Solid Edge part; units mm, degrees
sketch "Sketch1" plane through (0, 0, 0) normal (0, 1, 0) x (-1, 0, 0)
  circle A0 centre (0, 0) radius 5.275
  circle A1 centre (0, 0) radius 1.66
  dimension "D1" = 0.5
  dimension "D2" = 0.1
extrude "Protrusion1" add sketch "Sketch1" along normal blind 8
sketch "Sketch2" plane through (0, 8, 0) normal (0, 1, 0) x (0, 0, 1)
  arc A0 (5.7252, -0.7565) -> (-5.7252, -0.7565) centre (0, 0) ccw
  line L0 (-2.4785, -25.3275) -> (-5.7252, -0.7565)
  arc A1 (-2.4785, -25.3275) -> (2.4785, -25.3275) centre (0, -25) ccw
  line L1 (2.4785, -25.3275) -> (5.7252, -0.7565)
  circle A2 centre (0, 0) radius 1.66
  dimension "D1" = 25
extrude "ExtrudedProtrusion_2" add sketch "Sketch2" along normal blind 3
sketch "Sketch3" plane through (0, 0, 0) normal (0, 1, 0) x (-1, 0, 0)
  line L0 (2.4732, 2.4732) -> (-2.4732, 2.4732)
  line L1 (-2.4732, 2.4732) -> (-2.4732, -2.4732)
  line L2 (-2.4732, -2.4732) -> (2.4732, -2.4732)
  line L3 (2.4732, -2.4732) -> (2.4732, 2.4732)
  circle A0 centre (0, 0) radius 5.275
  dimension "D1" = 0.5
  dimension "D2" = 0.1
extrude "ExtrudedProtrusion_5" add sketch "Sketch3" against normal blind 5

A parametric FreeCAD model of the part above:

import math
import FreeCAD as App
import Part
import Sketcher
Q = App.Units.Quantity


def add_polygon(sketch, points):
    """Adds a closed chain of lines whose ends are joined by coincident constraints."""
    first, n = sketch.GeometryCount, len(points)
    for a, b in zip(points, points[1:] + points[:1]):
        sketch.addGeometry(Part.LineSegment(App.Vector(*a, 0), App.Vector(*b, 0)), False)
    for i in range(n):
        sketch.addConstraint(Sketcher.Constraint("Coincident", first + i, 2, first + (i + 1) % n, 1))

doc = App.newDocument("Part")
body = doc.addObject("PartDesign::Body", "Body")

# Sketch on XZ plane
sketch1 = doc.addObject("Sketcher::SketchObject", "Sketch")
body.addObject(sketch1)
sketch1.AttachmentSupport = (doc.XZ_Plane, [""])
sketch1.MapMode = "FlatFace"
sketch1.addGeometry([
    Part.Circle(App.Vector(0, 0, 0), App.Vector(0, 0, 1), 5.3),
    Part.Circle(App.Vector(0, 0, 0), App.Vector(0, 0, 1), 1.7),
], False)
sketch1.addConstraint([
    Sketcher.Constraint("Coincident", 0, 3, -1, 1),
    Sketcher.Constraint("Coincident", 1, 3, -1, 1),
    Sketcher.Constraint("Diameter", 0, Q("10.55 mm")),
    Sketcher.Constraint("Diameter", 1, Q("3.32 mm")),
])
pad1 = doc.addObject("PartDesign::Pad", "Pad")
body.addObject(pad1)
pad1.Profile = sketch1
pad1.Length = 8
pad1.Reversed = True

# Sketch on XZ plane
sketch2 = doc.addObject("Sketcher::SketchObject", "Sketch001")
body.addObject(sketch2)
sketch2.AttachmentSupport = (doc.XZ_Plane, [""])
sketch2.MapMode = "FlatFace"
sketch2.AttachmentOffset = App.Placement(App.Vector(0, 0, -8), App.Rotation())
sketch2.addGeometry([
    Part.LineSegment(App.Vector(-25.3, 2.5, 0), App.Vector(-0.8, 5.7, 0)),  # 0
    Part.ArcOfCircle(Part.Circle(App.Vector(0, 0, 0), App.Vector(0, 0, 1), 5.8), math.radians(-98), math.radians(98)),  # 1
    Part.LineSegment(App.Vector(-0.8, -5.7, 0), App.Vector(-25.3, -2.5, 0)),  # 2
    Part.ArcOfCircle(Part.Circle(App.Vector(-25, 0, 0), App.Vector(0, 0, 1), 2.5), math.radians(98), math.radians(262)),  # 3
    Part.Circle(App.Vector(0, 0, 0), App.Vector(0, 0, 1), 1.7),  # 4
], False)
sketch2.addConstraint([
    Sketcher.Constraint("Tangent", 0, 2, 1, 2),
    Sketcher.Constraint("Tangent", 1, 1, 2, 1),
    Sketcher.Constraint("Tangent", 2, 2, 3, 2),
    Sketcher.Constraint("Tangent", 3, 1, 0, 1),
    Sketcher.Constraint("Coincident", 1, 3, -1, 1),
    Sketcher.Constraint("Coincident", 4, 3, -1, 1),
    Sketcher.Constraint("PointOnObject", 3, 3, -1),
    Sketcher.Constraint("Radius", 3, Q("2.5 mm")),
    Sketcher.Constraint("Diameter", 4, Q("3.32 mm")),
    Sketcher.Constraint("DistanceX", 3, 3, -1, 1, Q("25 mm")),
    Sketcher.Constraint("Radius", 1, Q("5.775 mm")),
])
pad2 = doc.addObject("PartDesign::Pad", "Pad001")
body.addObject(pad2)
pad2.Profile = sketch2
pad2.Length = 3
pad2.Reversed = True

# Sketch on XZ plane
sketch3 = doc.addObject("Sketcher::SketchObject", "Sketch002")
body.addObject(sketch3)
sketch3.AttachmentSupport = (doc.XZ_Plane, [""])
sketch3.MapMode = "FlatFace"
sketch3.addGeometry(Part.Circle(App.Vector(0, 0, 0), App.Vector(0, 0, 1), 5.3), False)  # 0
add_polygon(sketch3, [(2.5, 2.5), (-2.5, 2.5), (-2.5, -2.5), (2.5, -2.5)])  # lines 1-4
sketch3.addConstraint([
    Sketcher.Constraint("Horizontal", 1),
    Sketcher.Constraint("Vertical", 2),
    Sketcher.Constraint("Horizontal", 3),
    Sketcher.Constraint("Vertical", 4),
    Sketcher.Constraint("Coincident", 0, 3, -1, 1),
    Sketcher.Constraint("Symmetric", 1, 2, 3, 2, -1, 1),
    Sketcher.Constraint("Equal", 3, 2),
    Sketcher.Constraint("Diameter", 0, Q("10.55 mm")),
    Sketcher.Constraint("DistanceX", 1, 2, 1, 1, Q("4.9464 mm")),
])
pad3 = doc.addObject("PartDesign::Pad", "Pad002")
body.addObject(pad3)
pad3.Profile = sketch3
pad3.Length = 5

doc.recompute()
